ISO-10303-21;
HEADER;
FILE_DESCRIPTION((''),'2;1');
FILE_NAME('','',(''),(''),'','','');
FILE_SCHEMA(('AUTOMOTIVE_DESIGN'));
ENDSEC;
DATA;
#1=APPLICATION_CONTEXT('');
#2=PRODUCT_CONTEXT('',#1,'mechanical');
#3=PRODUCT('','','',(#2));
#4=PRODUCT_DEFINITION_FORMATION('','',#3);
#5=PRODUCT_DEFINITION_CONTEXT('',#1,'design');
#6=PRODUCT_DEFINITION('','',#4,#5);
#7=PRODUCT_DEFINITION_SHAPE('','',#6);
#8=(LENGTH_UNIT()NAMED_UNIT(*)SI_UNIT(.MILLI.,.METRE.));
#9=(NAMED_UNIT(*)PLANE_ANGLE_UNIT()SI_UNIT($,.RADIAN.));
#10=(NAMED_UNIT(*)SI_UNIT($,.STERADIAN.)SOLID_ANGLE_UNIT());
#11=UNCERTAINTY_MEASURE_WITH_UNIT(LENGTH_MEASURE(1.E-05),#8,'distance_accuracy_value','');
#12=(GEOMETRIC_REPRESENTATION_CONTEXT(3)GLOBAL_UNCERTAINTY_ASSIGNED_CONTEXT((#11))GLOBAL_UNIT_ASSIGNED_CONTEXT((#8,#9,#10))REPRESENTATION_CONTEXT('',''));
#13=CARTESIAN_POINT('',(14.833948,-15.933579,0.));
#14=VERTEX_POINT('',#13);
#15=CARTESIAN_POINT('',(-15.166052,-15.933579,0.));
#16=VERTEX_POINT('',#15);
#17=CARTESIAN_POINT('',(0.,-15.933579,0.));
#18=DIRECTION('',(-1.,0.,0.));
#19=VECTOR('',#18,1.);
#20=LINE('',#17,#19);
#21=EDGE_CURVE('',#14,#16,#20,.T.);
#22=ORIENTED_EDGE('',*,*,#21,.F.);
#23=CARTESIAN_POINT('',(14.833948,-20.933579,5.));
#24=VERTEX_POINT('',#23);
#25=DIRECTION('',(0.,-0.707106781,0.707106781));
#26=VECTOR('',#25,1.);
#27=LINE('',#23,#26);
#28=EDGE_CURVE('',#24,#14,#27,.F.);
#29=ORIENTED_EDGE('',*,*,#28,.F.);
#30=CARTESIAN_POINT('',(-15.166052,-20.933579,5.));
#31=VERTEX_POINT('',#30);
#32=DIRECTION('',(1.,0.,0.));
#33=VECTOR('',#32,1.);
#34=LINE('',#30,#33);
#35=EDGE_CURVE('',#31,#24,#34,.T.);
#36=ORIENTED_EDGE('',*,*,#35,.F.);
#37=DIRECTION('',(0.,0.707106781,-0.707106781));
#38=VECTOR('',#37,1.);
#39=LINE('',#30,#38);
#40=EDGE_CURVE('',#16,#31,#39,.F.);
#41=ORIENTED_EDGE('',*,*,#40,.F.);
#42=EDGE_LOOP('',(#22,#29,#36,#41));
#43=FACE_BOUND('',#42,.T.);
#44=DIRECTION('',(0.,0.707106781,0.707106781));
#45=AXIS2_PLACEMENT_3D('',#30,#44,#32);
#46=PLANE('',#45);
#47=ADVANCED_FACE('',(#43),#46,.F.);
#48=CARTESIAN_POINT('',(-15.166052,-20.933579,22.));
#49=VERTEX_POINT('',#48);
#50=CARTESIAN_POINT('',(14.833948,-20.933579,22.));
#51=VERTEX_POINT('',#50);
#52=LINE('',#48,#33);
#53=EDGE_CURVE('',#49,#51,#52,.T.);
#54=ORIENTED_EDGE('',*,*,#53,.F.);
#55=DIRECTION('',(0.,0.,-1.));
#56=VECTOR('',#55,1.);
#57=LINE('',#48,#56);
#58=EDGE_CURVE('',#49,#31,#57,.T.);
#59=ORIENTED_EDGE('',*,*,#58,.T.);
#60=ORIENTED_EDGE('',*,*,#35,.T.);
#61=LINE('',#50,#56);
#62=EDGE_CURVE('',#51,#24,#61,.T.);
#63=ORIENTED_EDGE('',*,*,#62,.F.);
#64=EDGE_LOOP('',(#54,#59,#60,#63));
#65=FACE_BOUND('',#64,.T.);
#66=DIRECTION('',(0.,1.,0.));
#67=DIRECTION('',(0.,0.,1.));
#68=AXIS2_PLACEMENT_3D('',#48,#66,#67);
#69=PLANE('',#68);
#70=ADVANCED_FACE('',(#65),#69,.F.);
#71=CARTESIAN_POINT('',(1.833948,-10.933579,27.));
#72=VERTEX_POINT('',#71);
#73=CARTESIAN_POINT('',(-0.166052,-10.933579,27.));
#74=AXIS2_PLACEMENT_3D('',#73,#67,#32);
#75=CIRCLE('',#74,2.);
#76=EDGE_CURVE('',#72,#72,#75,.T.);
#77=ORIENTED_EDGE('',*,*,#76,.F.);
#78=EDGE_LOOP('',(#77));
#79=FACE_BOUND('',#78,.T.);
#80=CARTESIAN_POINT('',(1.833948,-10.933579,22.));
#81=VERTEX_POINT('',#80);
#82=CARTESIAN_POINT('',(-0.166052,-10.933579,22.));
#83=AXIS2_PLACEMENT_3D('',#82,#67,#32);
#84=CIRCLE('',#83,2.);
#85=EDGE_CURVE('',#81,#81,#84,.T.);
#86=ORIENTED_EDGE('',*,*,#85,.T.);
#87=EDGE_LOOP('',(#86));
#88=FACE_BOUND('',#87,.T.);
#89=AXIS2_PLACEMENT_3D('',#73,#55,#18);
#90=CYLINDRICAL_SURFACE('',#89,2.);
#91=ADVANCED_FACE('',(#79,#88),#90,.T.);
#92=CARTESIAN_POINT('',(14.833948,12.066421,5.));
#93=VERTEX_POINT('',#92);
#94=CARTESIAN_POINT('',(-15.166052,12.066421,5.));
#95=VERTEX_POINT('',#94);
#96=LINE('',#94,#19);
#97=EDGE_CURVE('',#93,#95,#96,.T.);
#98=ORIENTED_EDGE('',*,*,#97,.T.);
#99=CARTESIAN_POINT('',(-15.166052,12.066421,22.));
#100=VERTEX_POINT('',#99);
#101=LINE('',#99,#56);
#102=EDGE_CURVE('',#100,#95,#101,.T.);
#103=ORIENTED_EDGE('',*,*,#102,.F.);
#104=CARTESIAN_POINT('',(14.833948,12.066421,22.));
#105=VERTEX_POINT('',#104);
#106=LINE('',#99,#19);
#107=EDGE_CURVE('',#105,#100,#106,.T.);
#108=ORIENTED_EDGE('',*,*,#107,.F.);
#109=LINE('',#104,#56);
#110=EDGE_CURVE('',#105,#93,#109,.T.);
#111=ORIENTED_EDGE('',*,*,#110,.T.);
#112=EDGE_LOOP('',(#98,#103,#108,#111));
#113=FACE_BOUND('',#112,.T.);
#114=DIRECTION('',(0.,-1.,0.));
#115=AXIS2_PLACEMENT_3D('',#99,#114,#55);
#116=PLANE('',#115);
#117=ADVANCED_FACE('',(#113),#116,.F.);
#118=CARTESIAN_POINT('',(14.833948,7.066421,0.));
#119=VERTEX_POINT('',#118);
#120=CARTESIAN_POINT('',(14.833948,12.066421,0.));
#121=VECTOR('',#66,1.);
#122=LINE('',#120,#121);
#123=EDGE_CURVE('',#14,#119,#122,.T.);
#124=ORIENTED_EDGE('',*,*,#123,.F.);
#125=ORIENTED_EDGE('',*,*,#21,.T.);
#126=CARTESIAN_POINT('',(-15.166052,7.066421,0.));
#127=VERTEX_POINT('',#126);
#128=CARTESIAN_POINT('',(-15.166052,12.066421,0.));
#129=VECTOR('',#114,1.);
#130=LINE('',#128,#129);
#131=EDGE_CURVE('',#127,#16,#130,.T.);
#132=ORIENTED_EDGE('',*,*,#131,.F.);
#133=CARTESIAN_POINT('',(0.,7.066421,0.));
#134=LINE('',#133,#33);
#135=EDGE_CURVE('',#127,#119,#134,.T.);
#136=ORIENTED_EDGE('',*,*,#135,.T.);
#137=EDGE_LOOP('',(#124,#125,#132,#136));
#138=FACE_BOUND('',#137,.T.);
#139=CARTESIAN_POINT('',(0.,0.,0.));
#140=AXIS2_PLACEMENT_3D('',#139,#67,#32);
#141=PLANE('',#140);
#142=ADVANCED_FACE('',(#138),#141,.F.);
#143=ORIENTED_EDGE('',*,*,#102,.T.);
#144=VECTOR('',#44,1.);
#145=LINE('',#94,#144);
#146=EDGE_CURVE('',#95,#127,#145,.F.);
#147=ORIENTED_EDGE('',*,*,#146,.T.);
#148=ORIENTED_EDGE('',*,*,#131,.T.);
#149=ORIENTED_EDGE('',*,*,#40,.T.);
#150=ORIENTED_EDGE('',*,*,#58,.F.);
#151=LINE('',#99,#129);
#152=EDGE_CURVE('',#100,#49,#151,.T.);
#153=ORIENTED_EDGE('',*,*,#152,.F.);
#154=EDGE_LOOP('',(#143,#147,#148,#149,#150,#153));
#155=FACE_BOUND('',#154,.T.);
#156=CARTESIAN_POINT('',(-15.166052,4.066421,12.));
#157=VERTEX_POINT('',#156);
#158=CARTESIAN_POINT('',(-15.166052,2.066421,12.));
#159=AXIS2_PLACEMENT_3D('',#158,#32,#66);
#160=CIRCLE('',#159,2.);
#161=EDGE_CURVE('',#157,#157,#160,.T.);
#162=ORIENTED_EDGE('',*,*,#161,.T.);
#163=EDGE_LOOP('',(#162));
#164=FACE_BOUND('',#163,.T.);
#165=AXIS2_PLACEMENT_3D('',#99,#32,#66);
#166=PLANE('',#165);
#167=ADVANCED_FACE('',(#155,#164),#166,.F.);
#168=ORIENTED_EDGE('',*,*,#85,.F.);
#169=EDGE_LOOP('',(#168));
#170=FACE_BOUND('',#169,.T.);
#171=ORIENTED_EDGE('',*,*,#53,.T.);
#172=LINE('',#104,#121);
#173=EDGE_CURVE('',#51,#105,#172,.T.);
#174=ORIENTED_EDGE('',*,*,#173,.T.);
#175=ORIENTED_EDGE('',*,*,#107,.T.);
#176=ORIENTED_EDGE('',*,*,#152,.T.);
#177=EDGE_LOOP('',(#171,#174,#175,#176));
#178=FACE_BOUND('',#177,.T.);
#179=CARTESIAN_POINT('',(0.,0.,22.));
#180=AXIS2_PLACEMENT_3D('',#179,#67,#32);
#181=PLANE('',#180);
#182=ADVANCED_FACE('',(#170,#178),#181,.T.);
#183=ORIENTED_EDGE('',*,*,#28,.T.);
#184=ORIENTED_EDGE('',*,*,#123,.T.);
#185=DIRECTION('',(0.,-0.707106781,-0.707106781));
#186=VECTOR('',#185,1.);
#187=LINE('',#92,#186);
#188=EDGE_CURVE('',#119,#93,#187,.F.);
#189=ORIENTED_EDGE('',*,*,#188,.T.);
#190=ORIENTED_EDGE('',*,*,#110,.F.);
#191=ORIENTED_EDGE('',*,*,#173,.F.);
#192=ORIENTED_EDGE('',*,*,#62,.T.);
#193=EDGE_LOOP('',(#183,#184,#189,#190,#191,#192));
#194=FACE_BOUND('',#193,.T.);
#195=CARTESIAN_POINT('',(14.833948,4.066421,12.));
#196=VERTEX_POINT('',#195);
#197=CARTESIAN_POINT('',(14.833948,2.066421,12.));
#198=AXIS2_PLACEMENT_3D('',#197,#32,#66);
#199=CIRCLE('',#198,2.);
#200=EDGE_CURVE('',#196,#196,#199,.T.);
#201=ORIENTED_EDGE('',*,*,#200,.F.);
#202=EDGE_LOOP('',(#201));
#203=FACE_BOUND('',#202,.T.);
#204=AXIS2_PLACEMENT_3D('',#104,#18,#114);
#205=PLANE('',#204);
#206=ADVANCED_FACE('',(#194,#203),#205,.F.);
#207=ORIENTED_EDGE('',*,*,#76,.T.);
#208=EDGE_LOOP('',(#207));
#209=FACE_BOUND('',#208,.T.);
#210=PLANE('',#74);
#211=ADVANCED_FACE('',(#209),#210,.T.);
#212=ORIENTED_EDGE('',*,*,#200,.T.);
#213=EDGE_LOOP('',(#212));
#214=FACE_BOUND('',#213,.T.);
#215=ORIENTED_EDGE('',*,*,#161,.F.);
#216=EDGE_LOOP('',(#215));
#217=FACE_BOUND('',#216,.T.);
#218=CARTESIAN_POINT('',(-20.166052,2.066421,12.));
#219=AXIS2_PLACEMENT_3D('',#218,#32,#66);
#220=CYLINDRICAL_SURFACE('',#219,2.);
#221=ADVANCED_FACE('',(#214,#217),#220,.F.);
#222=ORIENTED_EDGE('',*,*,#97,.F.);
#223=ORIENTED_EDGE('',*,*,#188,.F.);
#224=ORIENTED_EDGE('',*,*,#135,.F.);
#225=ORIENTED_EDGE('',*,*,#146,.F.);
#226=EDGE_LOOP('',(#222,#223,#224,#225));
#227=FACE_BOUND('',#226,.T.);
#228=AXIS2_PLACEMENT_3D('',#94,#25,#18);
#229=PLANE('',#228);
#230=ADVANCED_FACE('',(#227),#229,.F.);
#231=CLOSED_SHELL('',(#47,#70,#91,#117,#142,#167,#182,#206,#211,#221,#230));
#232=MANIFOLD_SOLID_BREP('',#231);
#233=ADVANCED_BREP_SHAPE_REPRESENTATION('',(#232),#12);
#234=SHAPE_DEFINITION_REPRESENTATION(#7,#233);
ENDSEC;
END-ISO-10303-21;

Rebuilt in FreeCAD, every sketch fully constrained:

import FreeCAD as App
import Part
import Sketcher
from FreeCAD import Vector
Q = App.Units.Quantity


def edges_at(feature, points):
    """Names of the edges that pass closest to the given points."""
    edges = feature.Shape.Edges
    near = lambda p: min(range(len(edges)), key=lambda i: edges[i].distToShape(Part.Vertex(*p))[0])
    return sorted({f"Edge{near(p) + 1}" for p in points})


def add_polygon(sketch, points):
    """Adds a closed chain of lines whose ends are joined by coincident constraints."""
    first, n = sketch.GeometryCount, len(points)
    for a, b in zip(points, points[1:] + points[:1]):
        sketch.addGeometry(Part.LineSegment(App.Vector(*a, 0), App.Vector(*b, 0)), False)
    for i in range(n):
        sketch.addConstraint(Sketcher.Constraint("Coincident", first + i, 2, first + (i + 1) % n, 1))

doc = App.newDocument("Part")
body = doc.addObject("PartDesign::Body", "Body")

sketch1 = body.newObject("Sketcher::SketchObject", "Sketch")
sketch1.AttachmentSupport = (doc.getObject("XY_Plane"), [""])
sketch1.MapMode = "FlatFace"
add_polygon(sketch1, [(-15, 12), (-15, -21), (15, -21), (15, 12)])
sketch1.addConstraint([
    Sketcher.Constraint("Vertical", 0),
    Sketcher.Constraint("Horizontal", 1),
    Sketcher.Constraint("Vertical", 2),
    Sketcher.Constraint("Horizontal", 3),
    Sketcher.Constraint("DistanceX", 1, 1, 1, 2, Q("30 mm")),
    Sketcher.Constraint("DistanceY", 0, 2, 0, 1, Q("33 mm")),
    Sketcher.Constraint("DistanceX", 0, 2, -1, 1, Q("15.166052 mm")),
    Sketcher.Constraint("DistanceY", 0, 2, -1, 1, Q("20.933579 mm")),
])
pad1 = body.newObject("PartDesign::Pad", "Pad")
pad1.Profile = sketch1
pad1.Length = 22
doc.recompute()

chamfer = body.newObject("PartDesign::Chamfer", "Chamfer")
chamfer.Base = (pad1, edges_at(pad1, [(-0.166, 12.066, 0)]))
chamfer.Size = 5
doc.recompute()

chamfer2 = body.newObject("PartDesign::Chamfer", "Chamfer001")
chamfer2.Base = (chamfer, edges_at(chamfer, [(-0.166, -20.934, 0)]))
chamfer2.Size = 5

sketch2 = body.newObject("Sketcher::SketchObject", "Sketch001")
sketch2.AttachmentSupport = (doc.getObject("YZ_Plane"), [""])
sketch2.MapMode = "FlatFace"
sketch2.AttachmentOffset = App.Placement(Vector(0, 0, 14.833948), App.Rotation())
sketch2.addGeometry(Part.Circle(Vector(2.1, 12, 0), Vector(0, 0, 1), 2), False)
sketch2.addConstraint([
    Sketcher.Constraint("Diameter", 0, Q("4 mm")),
    Sketcher.Constraint("DistanceY", -1, 1, 0, 3, Q("12 mm")),
    Sketcher.Constraint("DistanceX", -1, 1, 0, 3, Q("2.066421 mm")),
])
pocket1 = body.newObject("PartDesign::Pocket", "Pocket")
pocket1.Profile = sketch2
pocket1.Length = 35

sketch3 = body.newObject("Sketcher::SketchObject", "Sketch002")
sketch3.AttachmentSupport = (doc.getObject("XY_Plane"), [""])
sketch3.MapMode = "FlatFace"
sketch3.AttachmentOffset = App.Placement(Vector(0, 0, 22), App.Rotation())
sketch3.addGeometry(Part.Circle(Vector(-0.2, -10.9, 0), Vector(0, 0, 1), 2), False)
sketch3.addConstraint([
    Sketcher.Constraint("Diameter", 0, Q("4 mm")),
    Sketcher.Constraint("DistanceX", 0, 3, -1, 1, Q("0.166052 mm")),
    Sketcher.Constraint("DistanceY", 0, 3, -1, 1, Q("10.933579 mm")),
])
pad2 = body.newObject("PartDesign::Pad", "Pad001")
pad2.Profile = sketch3
pad2.Length = 5

doc.recompute()
